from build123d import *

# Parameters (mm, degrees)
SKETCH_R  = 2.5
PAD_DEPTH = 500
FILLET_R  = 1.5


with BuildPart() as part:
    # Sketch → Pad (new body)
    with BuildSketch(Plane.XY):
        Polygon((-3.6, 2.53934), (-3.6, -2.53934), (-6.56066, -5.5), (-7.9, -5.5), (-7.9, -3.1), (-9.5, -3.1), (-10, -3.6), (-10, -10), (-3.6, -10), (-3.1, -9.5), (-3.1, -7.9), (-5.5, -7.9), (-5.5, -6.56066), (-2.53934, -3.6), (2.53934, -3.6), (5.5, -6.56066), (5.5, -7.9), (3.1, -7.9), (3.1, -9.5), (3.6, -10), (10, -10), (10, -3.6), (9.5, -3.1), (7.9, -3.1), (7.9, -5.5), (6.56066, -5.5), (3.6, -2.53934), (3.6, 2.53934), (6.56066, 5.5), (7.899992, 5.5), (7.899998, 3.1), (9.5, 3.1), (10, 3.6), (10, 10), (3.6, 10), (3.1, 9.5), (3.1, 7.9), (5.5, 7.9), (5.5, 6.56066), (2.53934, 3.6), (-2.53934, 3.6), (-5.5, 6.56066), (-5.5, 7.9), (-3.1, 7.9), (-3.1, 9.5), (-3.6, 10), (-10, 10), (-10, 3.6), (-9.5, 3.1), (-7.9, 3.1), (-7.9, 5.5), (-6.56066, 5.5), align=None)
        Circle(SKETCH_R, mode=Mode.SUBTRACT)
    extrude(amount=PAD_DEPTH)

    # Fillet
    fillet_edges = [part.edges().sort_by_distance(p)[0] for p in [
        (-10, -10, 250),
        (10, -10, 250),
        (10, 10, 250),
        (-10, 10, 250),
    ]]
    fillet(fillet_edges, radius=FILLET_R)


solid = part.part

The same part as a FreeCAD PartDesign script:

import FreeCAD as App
import Part
import Sketcher

V = App.Vector
Q = App.Units.Quantity


def edges_at(feature, points):
    """Names of the edges that pass closest to the given points."""
    edges = feature.Shape.Edges
    near = lambda p: min(range(len(edges)), key=lambda i: edges[i].distToShape(Part.Vertex(*p))[0])
    return sorted({f"Edge{near(p) + 1}" for p in points})


def add_polygon(sketch, points):
    """Adds a closed chain of lines whose ends are joined by coincident constraints."""
    first, n = sketch.GeometryCount, len(points)
    for a, b in zip(points, points[1:] + points[:1]):
        sketch.addGeometry(Part.LineSegment(App.Vector(*a, 0), App.Vector(*b, 0)), False)
    for i in range(n):
        sketch.addConstraint(Sketcher.Constraint("Coincident", first + i, 2, first + (i + 1) % n, 1))

doc = App.newDocument("Part")
body = doc.addObject("PartDesign::Body", "Body")

# Sketch on XY plane
sketch1 = body.newObject("Sketcher::SketchObject", "Sketch")
sketch1.AttachmentSupport = (doc.getObject("XY_Plane"), [""])
sketch1.MapMode = "FlatFace"
add_polygon(sketch1, [(-3.6, 2.5), (-3.6, -2.5), (-6.6, -5.5), (-7.9, -5.5), (-7.9, -3.1), (-9.5, -3.1), (-10, -3.6), (-10, -10), (-3.6, -10), (-3.1, -9.5), (-3.1, -7.9), (-5.5, -7.9), (-5.5, -6.6), (-2.5, -3.6), (2.5, -3.6), (5.5, -6.6), (5.5, -7.9), (3.1, -7.9), (3.1, -9.5), (3.6, -10), (10, -10), (10, -3.6), (9.5, -3.1), (7.9, -3.1), (7.9, -5.5), (6.6, -5.5), (3.6, -2.5), (3.6, 2.5), (6.6, 5.5), (7.9, 5.5), (7.9, 3.1), (9.5, 3.1), (10, 3.6), (10, 10), (3.6, 10), (3.1, 9.5), (3.1, 7.9), (5.5, 7.9), (5.5, 6.6), (2.5, 3.6), (-2.5, 3.6), (-5.5, 6.6), (-5.5, 7.9), (-3.1, 7.9), (-3.1, 9.5), (-3.6, 10), (-10, 10), (-10, 3.6), (-9.5, 3.1), (-7.9, 3.1), (-7.9, 5.5), (-6.6, 5.5)])  # lines 0-51
sketch1.addGeometry(Part.Circle(V(0, 0, 0), V(0, 0, 1), 2.5), False)  # 52
sketch1.addConstraint([
    Sketcher.Constraint("Vertical", 0),
    Sketcher.Constraint("Horizontal", 2),
    Sketcher.Constraint("Vertical", 3),
    Sketcher.Constraint("Horizontal", 4),
    Sketcher.Constraint("Vertical", 6),
    Sketcher.Constraint("Horizontal", 7),
    Sketcher.Constraint("Vertical", 9),
    Sketcher.Constraint("Horizontal", 10),
    Sketcher.Constraint("Vertical", 11),
    Sketcher.Constraint("Horizontal", 13),
    Sketcher.Constraint("Vertical", 15),
    Sketcher.Constraint("Horizontal", 16),
    Sketcher.Constraint("Vertical", 17),
    Sketcher.Constraint("Horizontal", 19),
    Sketcher.Constraint("Vertical", 20),
    Sketcher.Constraint("Horizontal", 22),
    Sketcher.Constraint("Vertical", 23),
    Sketcher.Constraint("Horizontal", 24),
    Sketcher.Constraint("Vertical", 26),
    Sketcher.Constraint("Horizontal", 28),
    Sketcher.Constraint("Horizontal", 30),
    Sketcher.Constraint("Vertical", 32),
    Sketcher.Constraint("Horizontal", 33),
    Sketcher.Constraint("Vertical", 35),
    Sketcher.Constraint("Horizontal", 36),
    Sketcher.Constraint("Vertical", 37),
    Sketcher.Constraint("Horizontal", 39),
    Sketcher.Constraint("Vertical", 41),
    Sketcher.Constraint("Horizontal", 42),
    Sketcher.Constraint("Vertical", 43),
    Sketcher.Constraint("Horizontal", 45),
    Sketcher.Constraint("Vertical", 46),
    Sketcher.Constraint("Horizontal", 48),
    Sketcher.Constraint("Vertical", 49),
    Sketcher.Constraint("Horizontal", 50),
    Sketcher.Constraint("Coincident", 52, 3, -1, 1),
    Sketcher.Constraint("Symmetric", 0, 2, 26, 2, -1, 1),
    Sketcher.Constraint("Symmetric", 1, 2, 27, 2, -1, 1),
    Sketcher.Constraint("Symmetric", 3, 2, 29, 2, -1, 1),
    Sketcher.Constraint("Symmetric", 5, 2, 31, 2, -1, 1),
    Sketcher.Constraint("Symmetric", 7, 2, 33, 2, -1, 1),
    Sketcher.Constraint("Symmetric", 8, 2, 34, 2, -1, 1),
    Sketcher.Constraint("Symmetric", 10, 2, 36, 2, -1, 1),
    Sketcher.Constraint("Symmetric", 12, 2, 38, 2, -1, 1),
    Sketcher.Constraint("Symmetric", 14, 2, 40, 2, -1, 1),
    Sketcher.Constraint("Symmetric", 16, 2, 42, 2, -1, 1),
    Sketcher.Constraint("Symmetric", 18, 2, 44, 2, -1, 1),
    Sketcher.Constraint("Symmetric", 20, 2, 46, 2, -1, 1),
    Sketcher.Constraint("Symmetric", 21, 2, 47, 2, -1, 1),
    Sketcher.Constraint("Symmetric", 23, 2, 49, 2, -1, 1),
    Sketcher.Constraint("Symmetric", 11, 2, 14, 2, -2),
    Sketcher.Constraint("Symmetric", 9, 2, 16, 2, -2),
    Sketcher.Constraint("Symmetric", 7, 2, 18, 2, -2),
    Sketcher.Constraint("Symmetric", 5, 2, 20, 2, -2),
    Sketcher.Constraint("Symmetric", 4, 2, 21, 2, -2),
    Sketcher.Constraint("Symmetric", 2, 2, 23, 2, -2),
    Sketcher.Constraint("Parallel", 1, 5),
    Sketcher.Constraint("Parallel", 5, 8),
    Sketcher.Constraint("Parallel", 8, 12),
    Sketcher.Constraint("Perpendicular", 12, 14),
    Sketcher.Constraint("Parallel", 14, 18),
    Sketcher.Constraint("Parallel", 18, 21),
    Sketcher.Constraint("Parallel", 21, 25),
    Sketcher.Constraint("Parallel", 27, 31),
    Sketcher.Constraint("Parallel", 34, 38),
    Sketcher.Constraint("Perpendicular", 38, 40),
    Sketcher.Constraint("Parallel", 40, 44),
    Sketcher.Constraint("Parallel", 47, 51),
    Sketcher.Constraint("Horizontal", 5, 2, 12, 2),
    Sketcher.Constraint("Horizontal", 0, 2, 25, 2),
    Sketcher.Constraint("Horizontal", 26, 2, 51, 2),
    Sketcher.Constraint("Vertical", 0, 2, 7, 2),
    Sketcher.Constraint("Equal", 39, 0),
    Sketcher.Constraint("Equal", 42, 3),
    Sketcher.Constraint("Equal", 45, 6),
    Sketcher.Constraint("Equal", 48, 9),
    Sketcher.Constraint("Equal", 50, 11),
    Sketcher.Constraint("Equal", 5, 8),
    Sketcher.Constraint("Diameter", 52, Q("5 mm")),
    Sketcher.Constraint("DistanceX", 4, 2, 4, 1, Q("1.6 mm")),
    Sketcher.Constraint("DistanceX", 7, 1, 7, 2, Q("6.4 mm")),
    Sketcher.Constraint("DistanceX", 10, 2, 10, 1, Q("2.4 mm")),
    Sketcher.Constraint("DistanceX", 5, 2, -1, 1, Q("10 mm")),
    Sketcher.Constraint("DistanceY", 1, 2, -1, 1, Q("5.5 mm")),
    Sketcher.Constraint("DistanceX", 2, 2, 2, 1, Q("1.33934 mm")),
    Sketcher.Constraint("DistanceX", 28, 1, 28, 2, Q("1.339332 mm")),
])
pad1 = body.newObject("PartDesign::Pad", "Pad")
pad1.Profile = sketch1
pad1.Length = 500
doc.recompute()

fillet = body.newObject("PartDesign::Fillet", "Fillet")
fillet.Base = (pad1, edges_at(pad1, [
    (-10, -10, 250),
    (10, -10, 250),
    (10, 10, 250),
    (-10, 10, 250),
]))
fillet.Radius = 1.5

doc.recompute()
